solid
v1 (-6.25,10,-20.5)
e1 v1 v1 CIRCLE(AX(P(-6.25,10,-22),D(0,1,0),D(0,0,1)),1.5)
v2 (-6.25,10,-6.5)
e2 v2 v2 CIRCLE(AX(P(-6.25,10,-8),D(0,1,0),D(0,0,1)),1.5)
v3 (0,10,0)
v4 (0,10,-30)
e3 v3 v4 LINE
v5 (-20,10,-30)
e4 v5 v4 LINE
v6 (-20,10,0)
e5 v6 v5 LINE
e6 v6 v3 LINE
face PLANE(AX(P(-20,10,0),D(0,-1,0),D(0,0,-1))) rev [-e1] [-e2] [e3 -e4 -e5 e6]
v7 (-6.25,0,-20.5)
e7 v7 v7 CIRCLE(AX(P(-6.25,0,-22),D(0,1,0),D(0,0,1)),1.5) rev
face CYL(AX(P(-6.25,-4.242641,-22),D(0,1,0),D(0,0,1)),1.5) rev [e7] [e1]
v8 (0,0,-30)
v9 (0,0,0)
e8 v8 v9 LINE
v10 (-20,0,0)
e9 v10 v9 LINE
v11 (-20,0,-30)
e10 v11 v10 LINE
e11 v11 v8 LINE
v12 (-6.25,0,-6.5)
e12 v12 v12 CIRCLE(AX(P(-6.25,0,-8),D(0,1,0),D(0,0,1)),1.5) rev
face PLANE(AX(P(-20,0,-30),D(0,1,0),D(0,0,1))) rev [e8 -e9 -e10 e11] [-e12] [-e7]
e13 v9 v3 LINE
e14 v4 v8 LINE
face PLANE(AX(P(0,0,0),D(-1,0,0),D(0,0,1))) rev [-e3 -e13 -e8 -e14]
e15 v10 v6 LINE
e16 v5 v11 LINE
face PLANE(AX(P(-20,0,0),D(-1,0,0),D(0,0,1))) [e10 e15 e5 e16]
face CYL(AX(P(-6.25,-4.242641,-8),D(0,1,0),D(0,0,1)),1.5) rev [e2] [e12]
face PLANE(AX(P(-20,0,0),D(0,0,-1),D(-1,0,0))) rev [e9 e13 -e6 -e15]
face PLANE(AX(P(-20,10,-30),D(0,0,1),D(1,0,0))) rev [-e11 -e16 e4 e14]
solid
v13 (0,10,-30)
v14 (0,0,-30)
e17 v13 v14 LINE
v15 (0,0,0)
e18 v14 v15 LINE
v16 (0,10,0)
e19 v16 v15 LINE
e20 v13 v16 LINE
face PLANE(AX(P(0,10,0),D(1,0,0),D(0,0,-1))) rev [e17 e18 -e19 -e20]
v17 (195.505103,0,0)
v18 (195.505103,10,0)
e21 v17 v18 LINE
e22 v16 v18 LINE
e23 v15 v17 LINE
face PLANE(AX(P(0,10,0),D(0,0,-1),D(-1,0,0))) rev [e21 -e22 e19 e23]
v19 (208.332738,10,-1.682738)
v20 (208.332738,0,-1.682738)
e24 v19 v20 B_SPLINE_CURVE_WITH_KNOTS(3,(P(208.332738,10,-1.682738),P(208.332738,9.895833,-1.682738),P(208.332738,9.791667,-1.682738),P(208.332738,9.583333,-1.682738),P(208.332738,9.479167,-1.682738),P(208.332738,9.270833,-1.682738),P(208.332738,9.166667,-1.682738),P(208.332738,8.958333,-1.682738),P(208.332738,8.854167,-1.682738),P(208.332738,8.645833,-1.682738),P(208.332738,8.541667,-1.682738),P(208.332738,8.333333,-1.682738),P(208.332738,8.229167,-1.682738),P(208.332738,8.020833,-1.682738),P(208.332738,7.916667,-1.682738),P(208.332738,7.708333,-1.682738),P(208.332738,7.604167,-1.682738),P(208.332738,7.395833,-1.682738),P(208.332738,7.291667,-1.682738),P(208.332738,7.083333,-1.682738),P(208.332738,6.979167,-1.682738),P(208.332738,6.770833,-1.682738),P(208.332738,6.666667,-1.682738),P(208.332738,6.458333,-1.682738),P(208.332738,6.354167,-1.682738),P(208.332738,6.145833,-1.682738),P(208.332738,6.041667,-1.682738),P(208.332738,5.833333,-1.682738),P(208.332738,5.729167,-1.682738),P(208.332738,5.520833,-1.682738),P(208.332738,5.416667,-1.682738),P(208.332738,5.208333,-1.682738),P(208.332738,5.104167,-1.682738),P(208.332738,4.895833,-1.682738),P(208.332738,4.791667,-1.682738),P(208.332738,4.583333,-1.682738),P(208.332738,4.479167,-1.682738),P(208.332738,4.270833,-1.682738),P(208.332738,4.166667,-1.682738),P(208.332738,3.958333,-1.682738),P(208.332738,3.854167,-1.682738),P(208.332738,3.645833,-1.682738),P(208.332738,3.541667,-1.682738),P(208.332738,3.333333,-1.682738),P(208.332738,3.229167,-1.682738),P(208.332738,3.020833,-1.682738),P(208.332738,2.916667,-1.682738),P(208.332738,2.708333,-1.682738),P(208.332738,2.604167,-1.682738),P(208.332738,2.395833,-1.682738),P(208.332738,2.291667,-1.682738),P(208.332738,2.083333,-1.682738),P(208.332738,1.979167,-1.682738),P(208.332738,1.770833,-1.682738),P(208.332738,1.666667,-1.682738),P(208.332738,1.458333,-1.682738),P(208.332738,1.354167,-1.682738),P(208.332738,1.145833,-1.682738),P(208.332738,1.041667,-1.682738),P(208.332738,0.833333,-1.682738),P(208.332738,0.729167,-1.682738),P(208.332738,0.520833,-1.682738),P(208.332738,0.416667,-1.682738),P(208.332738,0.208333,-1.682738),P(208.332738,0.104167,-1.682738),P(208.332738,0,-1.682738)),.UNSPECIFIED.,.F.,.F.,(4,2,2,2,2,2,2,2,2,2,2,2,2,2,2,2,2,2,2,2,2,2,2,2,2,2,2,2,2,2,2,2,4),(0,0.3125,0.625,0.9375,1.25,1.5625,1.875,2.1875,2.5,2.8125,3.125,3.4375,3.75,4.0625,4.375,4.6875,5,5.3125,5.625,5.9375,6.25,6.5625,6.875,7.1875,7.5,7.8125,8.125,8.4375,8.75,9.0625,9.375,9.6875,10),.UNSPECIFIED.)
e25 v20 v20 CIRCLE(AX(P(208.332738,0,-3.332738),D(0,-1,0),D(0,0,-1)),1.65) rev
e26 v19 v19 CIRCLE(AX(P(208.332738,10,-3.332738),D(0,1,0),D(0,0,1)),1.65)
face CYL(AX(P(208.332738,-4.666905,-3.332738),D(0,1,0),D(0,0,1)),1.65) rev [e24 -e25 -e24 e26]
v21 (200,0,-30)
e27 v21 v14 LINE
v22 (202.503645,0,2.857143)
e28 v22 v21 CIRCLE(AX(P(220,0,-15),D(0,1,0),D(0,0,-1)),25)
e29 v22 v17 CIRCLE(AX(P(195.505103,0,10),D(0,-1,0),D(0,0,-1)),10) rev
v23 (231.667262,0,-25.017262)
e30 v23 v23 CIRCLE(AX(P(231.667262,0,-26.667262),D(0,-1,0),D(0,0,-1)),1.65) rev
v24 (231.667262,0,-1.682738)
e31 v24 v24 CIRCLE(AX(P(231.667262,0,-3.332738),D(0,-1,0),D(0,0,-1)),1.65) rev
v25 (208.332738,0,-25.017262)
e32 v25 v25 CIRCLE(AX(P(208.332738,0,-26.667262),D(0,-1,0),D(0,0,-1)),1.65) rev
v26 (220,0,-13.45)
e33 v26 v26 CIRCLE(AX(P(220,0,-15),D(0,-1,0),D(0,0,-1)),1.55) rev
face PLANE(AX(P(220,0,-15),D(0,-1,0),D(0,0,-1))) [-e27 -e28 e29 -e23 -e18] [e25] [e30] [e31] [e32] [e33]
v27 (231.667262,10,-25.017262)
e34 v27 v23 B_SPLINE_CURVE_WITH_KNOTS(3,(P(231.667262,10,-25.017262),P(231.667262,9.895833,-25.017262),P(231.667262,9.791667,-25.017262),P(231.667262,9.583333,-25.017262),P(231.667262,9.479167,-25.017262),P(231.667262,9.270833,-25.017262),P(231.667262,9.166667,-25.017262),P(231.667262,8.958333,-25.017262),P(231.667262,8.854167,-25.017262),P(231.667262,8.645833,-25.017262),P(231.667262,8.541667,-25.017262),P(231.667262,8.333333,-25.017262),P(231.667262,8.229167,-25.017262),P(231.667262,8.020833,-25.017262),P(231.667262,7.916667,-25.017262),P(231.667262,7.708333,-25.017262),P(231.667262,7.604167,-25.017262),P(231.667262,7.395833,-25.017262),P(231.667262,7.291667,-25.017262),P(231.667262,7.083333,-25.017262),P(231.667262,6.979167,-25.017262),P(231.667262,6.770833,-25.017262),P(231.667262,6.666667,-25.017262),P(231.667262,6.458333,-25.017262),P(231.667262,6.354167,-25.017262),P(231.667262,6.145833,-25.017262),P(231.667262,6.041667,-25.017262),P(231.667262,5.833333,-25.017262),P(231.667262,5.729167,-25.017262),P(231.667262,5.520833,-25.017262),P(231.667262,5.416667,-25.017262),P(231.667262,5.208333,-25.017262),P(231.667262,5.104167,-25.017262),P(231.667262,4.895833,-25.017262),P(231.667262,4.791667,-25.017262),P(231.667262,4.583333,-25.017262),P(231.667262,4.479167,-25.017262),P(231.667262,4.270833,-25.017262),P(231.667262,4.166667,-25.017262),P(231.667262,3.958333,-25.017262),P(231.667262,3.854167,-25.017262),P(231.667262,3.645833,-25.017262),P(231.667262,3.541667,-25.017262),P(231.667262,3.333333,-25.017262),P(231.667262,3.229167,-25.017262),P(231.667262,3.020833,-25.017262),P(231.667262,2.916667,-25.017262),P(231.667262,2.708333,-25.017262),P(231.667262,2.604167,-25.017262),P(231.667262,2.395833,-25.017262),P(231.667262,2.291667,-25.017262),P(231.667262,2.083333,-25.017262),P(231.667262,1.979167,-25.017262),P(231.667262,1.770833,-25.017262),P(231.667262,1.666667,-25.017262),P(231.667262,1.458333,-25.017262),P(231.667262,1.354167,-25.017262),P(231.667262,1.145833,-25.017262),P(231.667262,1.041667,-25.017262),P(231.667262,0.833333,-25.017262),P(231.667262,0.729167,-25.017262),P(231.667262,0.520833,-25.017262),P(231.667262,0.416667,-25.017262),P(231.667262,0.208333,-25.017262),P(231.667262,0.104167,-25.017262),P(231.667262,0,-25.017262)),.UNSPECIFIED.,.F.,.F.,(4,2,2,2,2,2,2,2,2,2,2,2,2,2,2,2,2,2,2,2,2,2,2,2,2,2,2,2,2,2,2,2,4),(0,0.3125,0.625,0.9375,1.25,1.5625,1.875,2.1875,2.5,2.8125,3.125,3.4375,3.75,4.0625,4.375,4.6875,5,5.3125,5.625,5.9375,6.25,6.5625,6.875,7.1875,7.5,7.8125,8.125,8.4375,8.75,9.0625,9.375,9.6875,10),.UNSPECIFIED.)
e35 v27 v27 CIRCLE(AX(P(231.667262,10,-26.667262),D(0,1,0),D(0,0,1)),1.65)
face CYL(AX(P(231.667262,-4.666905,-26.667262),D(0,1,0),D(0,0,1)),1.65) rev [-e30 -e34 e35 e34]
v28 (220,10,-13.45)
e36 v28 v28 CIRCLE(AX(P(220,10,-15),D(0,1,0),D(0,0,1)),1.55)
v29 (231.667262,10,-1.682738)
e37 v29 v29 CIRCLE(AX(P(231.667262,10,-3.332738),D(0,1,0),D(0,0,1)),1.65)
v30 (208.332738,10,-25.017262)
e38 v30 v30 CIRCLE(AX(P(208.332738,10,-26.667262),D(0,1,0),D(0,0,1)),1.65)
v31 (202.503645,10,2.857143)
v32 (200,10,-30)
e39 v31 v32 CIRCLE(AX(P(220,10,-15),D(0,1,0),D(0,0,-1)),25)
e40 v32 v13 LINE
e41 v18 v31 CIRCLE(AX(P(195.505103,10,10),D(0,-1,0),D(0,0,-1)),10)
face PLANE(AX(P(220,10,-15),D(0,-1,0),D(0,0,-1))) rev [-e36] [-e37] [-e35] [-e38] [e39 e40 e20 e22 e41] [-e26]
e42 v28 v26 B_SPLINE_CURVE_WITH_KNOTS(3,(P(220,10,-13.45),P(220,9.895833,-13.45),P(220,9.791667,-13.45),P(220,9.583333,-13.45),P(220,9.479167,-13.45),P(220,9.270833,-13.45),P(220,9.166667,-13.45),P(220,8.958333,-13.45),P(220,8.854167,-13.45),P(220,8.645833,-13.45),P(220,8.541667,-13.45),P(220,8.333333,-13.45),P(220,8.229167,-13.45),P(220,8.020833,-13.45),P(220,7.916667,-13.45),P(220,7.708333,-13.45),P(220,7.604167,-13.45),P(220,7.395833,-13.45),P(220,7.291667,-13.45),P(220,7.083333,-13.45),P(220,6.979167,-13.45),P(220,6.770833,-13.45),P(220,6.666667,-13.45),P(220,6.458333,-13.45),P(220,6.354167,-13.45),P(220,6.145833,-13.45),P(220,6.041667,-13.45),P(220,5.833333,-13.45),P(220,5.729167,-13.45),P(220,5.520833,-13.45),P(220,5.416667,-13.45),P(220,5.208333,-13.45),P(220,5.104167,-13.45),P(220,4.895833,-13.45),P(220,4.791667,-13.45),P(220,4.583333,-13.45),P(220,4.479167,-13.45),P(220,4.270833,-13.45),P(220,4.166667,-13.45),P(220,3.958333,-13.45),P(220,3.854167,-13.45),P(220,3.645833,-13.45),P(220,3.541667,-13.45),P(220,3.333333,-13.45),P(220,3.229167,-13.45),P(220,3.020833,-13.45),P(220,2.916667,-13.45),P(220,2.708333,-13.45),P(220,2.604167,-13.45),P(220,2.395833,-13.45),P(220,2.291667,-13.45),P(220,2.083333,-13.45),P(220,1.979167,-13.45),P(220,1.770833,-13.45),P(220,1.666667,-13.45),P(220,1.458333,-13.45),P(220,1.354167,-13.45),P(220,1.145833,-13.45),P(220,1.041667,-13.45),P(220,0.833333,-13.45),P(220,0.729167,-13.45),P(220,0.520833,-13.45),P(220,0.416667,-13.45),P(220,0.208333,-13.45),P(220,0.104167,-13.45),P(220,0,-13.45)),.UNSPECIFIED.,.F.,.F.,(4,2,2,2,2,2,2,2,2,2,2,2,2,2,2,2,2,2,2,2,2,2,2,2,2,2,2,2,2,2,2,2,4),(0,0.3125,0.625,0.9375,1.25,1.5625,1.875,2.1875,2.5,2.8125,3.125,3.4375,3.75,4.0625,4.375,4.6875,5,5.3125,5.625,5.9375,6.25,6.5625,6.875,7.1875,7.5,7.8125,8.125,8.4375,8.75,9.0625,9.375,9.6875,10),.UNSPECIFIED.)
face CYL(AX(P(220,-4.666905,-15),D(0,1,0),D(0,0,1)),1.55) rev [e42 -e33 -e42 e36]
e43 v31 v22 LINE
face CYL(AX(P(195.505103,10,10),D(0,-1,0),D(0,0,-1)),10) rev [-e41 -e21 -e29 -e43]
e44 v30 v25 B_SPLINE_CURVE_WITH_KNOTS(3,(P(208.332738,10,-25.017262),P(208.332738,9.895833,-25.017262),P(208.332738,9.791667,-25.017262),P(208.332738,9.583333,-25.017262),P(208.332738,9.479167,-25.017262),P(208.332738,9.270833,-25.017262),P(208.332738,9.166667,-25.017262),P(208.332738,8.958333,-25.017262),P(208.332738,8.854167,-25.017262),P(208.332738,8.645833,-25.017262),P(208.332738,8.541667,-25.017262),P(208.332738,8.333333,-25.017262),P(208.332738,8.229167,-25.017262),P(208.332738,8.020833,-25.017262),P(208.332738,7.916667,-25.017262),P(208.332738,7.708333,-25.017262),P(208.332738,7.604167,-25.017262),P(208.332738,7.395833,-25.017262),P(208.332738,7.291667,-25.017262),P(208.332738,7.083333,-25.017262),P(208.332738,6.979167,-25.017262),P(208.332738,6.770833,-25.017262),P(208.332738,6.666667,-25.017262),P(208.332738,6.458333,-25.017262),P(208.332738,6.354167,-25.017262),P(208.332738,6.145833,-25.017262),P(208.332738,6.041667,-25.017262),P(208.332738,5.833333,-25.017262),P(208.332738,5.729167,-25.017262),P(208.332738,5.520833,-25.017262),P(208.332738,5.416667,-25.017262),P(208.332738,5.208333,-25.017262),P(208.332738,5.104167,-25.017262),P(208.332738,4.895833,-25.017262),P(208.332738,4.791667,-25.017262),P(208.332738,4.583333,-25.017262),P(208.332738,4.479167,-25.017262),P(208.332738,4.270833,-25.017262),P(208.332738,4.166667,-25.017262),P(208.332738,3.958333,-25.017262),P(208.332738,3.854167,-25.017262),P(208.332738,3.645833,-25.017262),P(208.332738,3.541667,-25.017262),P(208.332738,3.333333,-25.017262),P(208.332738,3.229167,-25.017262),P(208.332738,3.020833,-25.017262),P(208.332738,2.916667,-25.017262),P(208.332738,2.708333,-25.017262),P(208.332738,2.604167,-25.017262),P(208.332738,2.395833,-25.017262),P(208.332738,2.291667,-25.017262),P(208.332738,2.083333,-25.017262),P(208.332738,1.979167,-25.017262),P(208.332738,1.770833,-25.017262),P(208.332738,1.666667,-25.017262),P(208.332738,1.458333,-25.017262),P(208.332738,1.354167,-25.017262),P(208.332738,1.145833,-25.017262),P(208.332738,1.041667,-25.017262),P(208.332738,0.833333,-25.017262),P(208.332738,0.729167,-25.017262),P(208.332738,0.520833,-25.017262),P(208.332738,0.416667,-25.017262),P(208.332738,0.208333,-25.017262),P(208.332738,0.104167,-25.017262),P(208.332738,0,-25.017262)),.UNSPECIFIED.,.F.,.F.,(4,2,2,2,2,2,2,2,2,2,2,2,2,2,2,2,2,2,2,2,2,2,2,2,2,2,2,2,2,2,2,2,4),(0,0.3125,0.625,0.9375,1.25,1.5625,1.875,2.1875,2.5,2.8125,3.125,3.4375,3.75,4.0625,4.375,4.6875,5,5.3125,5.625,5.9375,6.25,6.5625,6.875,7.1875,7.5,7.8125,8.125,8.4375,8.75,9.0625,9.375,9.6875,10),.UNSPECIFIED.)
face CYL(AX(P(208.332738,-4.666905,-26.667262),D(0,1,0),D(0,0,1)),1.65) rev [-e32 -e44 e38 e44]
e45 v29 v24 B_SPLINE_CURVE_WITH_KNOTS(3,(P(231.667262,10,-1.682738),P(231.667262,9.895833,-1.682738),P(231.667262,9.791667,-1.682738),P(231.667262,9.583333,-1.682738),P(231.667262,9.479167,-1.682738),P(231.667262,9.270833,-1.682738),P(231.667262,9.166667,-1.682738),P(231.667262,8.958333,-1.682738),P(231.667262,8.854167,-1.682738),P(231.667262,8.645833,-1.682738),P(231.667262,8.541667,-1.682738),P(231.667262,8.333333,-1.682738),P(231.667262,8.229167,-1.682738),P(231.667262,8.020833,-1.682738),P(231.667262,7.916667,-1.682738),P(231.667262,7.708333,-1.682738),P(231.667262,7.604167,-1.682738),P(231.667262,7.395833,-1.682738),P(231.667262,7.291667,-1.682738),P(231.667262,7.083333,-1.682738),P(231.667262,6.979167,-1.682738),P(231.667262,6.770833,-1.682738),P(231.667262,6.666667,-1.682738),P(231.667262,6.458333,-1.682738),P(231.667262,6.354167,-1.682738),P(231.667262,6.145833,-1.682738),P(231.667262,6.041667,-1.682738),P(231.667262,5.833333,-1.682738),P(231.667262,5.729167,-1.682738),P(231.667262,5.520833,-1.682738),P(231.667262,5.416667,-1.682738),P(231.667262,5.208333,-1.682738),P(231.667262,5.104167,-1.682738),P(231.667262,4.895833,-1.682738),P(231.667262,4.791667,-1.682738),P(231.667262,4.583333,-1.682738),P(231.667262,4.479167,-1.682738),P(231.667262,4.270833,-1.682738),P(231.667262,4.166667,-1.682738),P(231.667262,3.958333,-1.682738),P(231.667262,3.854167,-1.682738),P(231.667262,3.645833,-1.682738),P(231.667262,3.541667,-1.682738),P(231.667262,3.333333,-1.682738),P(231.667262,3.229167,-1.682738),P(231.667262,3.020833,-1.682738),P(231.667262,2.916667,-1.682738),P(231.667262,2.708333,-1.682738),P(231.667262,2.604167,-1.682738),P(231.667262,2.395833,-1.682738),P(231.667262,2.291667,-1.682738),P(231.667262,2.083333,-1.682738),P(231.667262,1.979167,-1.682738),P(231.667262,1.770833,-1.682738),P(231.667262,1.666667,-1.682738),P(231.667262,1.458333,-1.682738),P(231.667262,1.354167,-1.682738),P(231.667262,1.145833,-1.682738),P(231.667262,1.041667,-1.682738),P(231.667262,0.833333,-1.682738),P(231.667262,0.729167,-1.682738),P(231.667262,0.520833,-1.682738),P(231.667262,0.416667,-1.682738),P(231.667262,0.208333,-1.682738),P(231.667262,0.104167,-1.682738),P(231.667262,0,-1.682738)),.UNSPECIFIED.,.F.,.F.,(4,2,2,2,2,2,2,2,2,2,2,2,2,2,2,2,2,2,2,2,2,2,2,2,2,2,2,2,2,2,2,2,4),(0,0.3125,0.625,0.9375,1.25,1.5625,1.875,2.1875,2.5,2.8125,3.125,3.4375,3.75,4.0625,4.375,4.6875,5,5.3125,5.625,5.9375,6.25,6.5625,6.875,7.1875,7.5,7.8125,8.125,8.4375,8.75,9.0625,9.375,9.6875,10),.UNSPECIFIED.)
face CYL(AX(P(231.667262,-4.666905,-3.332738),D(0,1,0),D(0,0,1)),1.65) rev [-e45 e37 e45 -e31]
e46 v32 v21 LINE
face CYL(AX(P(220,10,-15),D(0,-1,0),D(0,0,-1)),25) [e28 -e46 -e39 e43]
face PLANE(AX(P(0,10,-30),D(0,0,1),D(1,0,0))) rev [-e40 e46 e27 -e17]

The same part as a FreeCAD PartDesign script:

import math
import FreeCAD as App
import Part
import Sketcher
Q = App.Units.Quantity


def edges_at(feature, points):
    """Names of the edges that pass closest to the given points."""
    edges = feature.Shape.Edges
    near = lambda p: min(range(len(edges)), key=lambda i: edges[i].distToShape(Part.Vertex(*p))[0])
    return sorted({f"Edge{near(p) + 1}" for p in points})

doc = App.newDocument("Part")
body = doc.addObject("PartDesign::Body", "Body")

# Sketch on XZ plane
sketch1 = body.newObject("Sketcher::SketchObject", "Sketch")
sketch1.AttachmentSupport = (doc.getObject("XZ_Plane"), [""])
sketch1.MapMode = "FlatFace"
sketch1.addGeometry([
    Part.LineSegment(App.Vector(0, 0, 0), App.Vector(200, 0, 0)),
    Part.ArcOfCircle(Part.Circle(App.Vector(220, -15, 0), App.Vector(0, 0, 1), 25), math.radians(-143), math.radians(143)),
    Part.LineSegment(App.Vector(200, -30, 0), App.Vector(0, -30, 0)),
    Part.LineSegment(App.Vector(0, -30, 0), App.Vector(0, 0, 0)),
], False)
sketch1.addConstraint([
    Sketcher.Constraint("Coincident", 0, 2, 1, 2),
    Sketcher.Constraint("Coincident", 1, 1, 2, 1),
    Sketcher.Constraint("Coincident", 2, 2, 3, 1),
    Sketcher.Constraint("Coincident", 3, 2, 0, 1),
    Sketcher.Constraint("Horizontal", 0),
    Sketcher.Constraint("Horizontal", 2),
    Sketcher.Constraint("Vertical", 3),
    Sketcher.Constraint("Coincident", 3, 2, -1, 1),
    Sketcher.Constraint("Vertical", 0, 2, 1, 1),
    Sketcher.Constraint("Radius", 1, Q("25 mm")),
    Sketcher.Constraint("DistanceX", 0, 1, 0, 2, Q("200 mm")),
    Sketcher.Constraint("DistanceY", 3, 1, 3, 2, Q("30 mm")),
])
pad1 = body.newObject("PartDesign::Pad", "Pad")
pad1.Profile = sketch1
pad1.Length = 10
pad1.Reversed = True

# Sketch on XZ plane
sketch2 = body.newObject("Sketcher::SketchObject", "Sketch001")
sketch2.AttachmentSupport = (doc.getObject("XZ_Plane"), [""])
sketch2.MapMode = "FlatFace"
sketch2.AttachmentOffset = App.Placement(App.Vector(0, 0, -10), App.Rotation())
sketch2.addGeometry([
    Part.Circle(App.Vector(231.7, -26.7, 0), App.Vector(0, 0, 1), 1.6),  # 0
    Part.Circle(App.Vector(231.7, -3.3, 0), App.Vector(0, 0, 1), 1.6),  # 1
    Part.Circle(App.Vector(208.3, -3.3, 0), App.Vector(0, 0, 1), 1.6),  # 2
    Part.Circle(App.Vector(208.3, -26.7, 0), App.Vector(0, 0, 1), 1.6),  # 3
    Part.Circle(App.Vector(220, -15, 0), App.Vector(0, 0, 1), 1.6),  # 4
], False)
sketch2.addConstraint([
    Sketcher.Constraint("Equal", 0, 1),
    Sketcher.Constraint("Equal", 1, 2),
    Sketcher.Constraint("Equal", 2, 3),
    Sketcher.Constraint("Horizontal", 1, 3, 2, 3),
    Sketcher.Constraint("Horizontal", 0, 3, 3, 3),
    Sketcher.Constraint("Vertical", 0, 3, 1, 3),
    Sketcher.Constraint("Vertical", 2, 3, 3, 3),
    Sketcher.Constraint("Diameter", 0, Q("3.3 mm")),
    Sketcher.Constraint("Diameter", 4, Q("3.1 mm")),
    Sketcher.Constraint("DistanceX", -1, 1, 4, 3, Q("220 mm")),
    Sketcher.Constraint("DistanceY", 4, 3, -1, 1, Q("15 mm")),
    Sketcher.Constraint("DistanceX", -1, 1, 0, 3, Q("231.667262 mm")),
    Sketcher.Constraint("DistanceY", 0, 3, -1, 1, Q("26.667262 mm")),
    Sketcher.Constraint("DistanceY", 1, 3, -1, 1, Q("3.332738 mm")),
    Sketcher.Constraint("DistanceX", -1, 1, 2, 3, Q("208.332738 mm")),
])
pocket1 = body.newObject("PartDesign::Pocket", "Pocket")
pocket1.Profile = sketch2
pocket1.Length = 10
pocket1.Reversed = True
doc.recompute()

fillet = body.newObject("PartDesign::Fillet", "Fillet")
fillet.Base = (pocket1, edges_at(pocket1, [(200, 5, 0)]))
fillet.Radius = 10
body2 = doc.addObject("PartDesign::Body", "Body001")

# Sketch on YZ plane
sketch3 = body2.newObject("Sketcher::SketchObject", "Sketch002")
sketch3.AttachmentSupport = (doc.getObject("YZ_Plane001"), [""])
sketch3.MapMode = "FlatFace"
sketch3.addGeometry([
    Part.LineSegment(App.Vector(10, -30, 0), App.Vector(0, -30, 0)),
    Part.LineSegment(App.Vector(0, -30, 0), App.Vector(0, 0, 0)),
    Part.LineSegment(App.Vector(0, 0, 0), App.Vector(10, 0, 0)),
    Part.LineSegment(App.Vector(10, 0, 0), App.Vector(10, -30, 0)),
], False)
sketch3.addConstraint([
    Sketcher.Constraint("Coincident", 0, 2, 1, 1),
    Sketcher.Constraint("Coincident", 1, 2, 2, 1),
    Sketcher.Constraint("Coincident", 2, 2, 3, 1),
    Sketcher.Constraint("Coincident", 3, 2, 0, 1),
    Sketcher.Constraint("Horizontal", 0),
    Sketcher.Constraint("Vertical", 1),
    Sketcher.Constraint("Horizontal", 2),
    Sketcher.Constraint("Vertical", 3),
    Sketcher.Constraint("Coincident", 1, 2, -1, 1),
    Sketcher.Constraint("DistanceX", 0, 2, 0, 1, Q("10 mm")),
    Sketcher.Constraint("DistanceY", 1, 1, 1, 2, Q("30 mm")),
])
pad2 = body2.newObject("PartDesign::Pad", "Pad001")
pad2.Profile = sketch3
pad2.Length = 20
pad2.Reversed = True

# Sketch on XZ plane
sketch4 = body2.newObject("Sketcher::SketchObject", "Sketch003")
sketch4.AttachmentSupport = (doc.getObject("XZ_Plane001"), [""])
sketch4.MapMode = "FlatFace"
sketch4.AttachmentOffset = App.Placement(App.Vector(0, 0, -10), App.Rotation())
sketch4.addGeometry([
    Part.Circle(App.Vector(-6.2, -22, 0), App.Vector(0, 0, 1), 1.5),
    Part.Circle(App.Vector(-6.2, -8, 0), App.Vector(0, 0, 1), 1.5),
], False)
sketch4.addConstraint([
    Sketcher.Constraint("Equal", 0, 1),
    Sketcher.Constraint("Vertical", 0, 3, 1, 3),
    Sketcher.Constraint("Diameter", 0, Q("3 mm")),
    Sketcher.Constraint("DistanceY", 0, 3, -1, 1, Q("22 mm")),
    Sketcher.Constraint("DistanceY", 1, 3, -1, 1, Q("8 mm")),
    Sketcher.Constraint("DistanceX", 0, 3, -1, 1, Q("6.25 mm")),
])
pocket2 = body2.newObject("PartDesign::Pocket", "Pocket001")
pocket2.Profile = sketch4
pocket2.Length = 10
pocket2.Reversed = True

doc.recompute()
